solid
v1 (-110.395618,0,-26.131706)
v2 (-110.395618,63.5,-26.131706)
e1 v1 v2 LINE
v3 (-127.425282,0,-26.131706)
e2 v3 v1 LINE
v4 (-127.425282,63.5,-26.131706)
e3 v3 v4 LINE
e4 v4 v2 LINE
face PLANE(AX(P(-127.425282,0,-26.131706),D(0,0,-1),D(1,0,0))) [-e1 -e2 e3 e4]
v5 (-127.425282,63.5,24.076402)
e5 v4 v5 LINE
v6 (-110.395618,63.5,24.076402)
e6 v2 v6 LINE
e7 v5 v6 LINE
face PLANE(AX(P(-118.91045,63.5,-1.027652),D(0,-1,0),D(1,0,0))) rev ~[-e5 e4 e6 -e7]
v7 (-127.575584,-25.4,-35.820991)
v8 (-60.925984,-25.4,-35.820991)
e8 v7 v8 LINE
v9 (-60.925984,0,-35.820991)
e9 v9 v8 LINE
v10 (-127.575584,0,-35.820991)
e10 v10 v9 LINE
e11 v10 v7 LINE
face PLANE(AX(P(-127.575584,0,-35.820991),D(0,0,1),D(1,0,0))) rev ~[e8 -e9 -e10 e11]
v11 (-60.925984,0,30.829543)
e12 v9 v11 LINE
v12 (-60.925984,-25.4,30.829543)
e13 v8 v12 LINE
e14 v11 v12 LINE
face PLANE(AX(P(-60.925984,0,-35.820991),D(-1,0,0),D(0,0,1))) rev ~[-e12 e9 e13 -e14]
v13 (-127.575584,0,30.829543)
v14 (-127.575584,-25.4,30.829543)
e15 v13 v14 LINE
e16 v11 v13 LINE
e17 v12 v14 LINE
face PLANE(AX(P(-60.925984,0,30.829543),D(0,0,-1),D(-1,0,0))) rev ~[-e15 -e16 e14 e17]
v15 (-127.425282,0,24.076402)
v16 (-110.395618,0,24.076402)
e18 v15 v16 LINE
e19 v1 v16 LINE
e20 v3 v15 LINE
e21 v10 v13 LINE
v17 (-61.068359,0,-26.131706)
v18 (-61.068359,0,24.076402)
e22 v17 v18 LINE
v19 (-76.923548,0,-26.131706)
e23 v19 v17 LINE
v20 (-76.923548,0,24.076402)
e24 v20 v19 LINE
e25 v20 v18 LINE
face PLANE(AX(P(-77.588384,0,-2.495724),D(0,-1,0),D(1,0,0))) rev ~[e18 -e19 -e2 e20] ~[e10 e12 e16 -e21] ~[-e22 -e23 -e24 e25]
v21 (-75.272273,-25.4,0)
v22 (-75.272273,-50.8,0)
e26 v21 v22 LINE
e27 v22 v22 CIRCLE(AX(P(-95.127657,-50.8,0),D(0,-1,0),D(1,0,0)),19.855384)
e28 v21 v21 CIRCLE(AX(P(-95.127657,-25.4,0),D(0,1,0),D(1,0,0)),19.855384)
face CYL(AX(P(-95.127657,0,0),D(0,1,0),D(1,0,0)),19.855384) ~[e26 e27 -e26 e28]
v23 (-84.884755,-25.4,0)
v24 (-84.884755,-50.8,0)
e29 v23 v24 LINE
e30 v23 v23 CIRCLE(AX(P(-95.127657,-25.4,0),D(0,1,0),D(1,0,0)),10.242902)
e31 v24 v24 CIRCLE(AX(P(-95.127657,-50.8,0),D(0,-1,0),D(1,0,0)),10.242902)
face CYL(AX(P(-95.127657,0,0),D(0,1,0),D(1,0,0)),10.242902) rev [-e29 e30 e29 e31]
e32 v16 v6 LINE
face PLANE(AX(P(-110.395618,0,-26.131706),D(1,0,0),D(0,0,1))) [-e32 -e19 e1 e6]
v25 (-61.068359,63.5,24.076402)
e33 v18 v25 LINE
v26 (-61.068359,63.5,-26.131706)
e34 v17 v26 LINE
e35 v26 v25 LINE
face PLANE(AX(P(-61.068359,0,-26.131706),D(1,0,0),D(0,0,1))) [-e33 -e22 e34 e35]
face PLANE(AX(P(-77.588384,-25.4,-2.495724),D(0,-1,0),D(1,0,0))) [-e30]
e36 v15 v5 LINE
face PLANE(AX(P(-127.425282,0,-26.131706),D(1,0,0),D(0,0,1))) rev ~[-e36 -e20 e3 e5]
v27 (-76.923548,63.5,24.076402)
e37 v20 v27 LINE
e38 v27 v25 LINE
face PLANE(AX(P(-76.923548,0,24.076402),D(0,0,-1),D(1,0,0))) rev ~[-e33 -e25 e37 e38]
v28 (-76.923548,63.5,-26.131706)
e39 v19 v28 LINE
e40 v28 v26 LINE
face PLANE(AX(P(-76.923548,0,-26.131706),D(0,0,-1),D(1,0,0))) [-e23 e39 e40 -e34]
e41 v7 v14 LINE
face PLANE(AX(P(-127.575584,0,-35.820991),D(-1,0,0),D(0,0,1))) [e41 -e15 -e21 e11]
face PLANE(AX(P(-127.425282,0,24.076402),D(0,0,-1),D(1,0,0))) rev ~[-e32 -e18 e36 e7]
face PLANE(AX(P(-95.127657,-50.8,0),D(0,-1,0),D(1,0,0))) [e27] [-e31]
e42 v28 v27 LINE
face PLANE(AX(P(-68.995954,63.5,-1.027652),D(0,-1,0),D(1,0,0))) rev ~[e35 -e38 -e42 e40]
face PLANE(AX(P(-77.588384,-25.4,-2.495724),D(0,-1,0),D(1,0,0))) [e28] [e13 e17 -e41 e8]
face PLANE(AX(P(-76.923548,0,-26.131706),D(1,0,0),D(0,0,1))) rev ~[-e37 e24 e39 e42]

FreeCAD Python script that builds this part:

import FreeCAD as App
import Part
import Sketcher
Q = App.Units.Quantity

doc = App.newDocument("Part")
body = doc.addObject("PartDesign::Body", "Body")

sketch1 = doc.addObject("Sketcher::SketchObject", "Sketch")
body.addObject(sketch1)
sketch1.AttachmentSupport = (doc.XZ_Plane, [""])
sketch1.MapMode = "FlatFace"
sketch1.addGeometry([
    Part.LineSegment(App.Vector(-60.925984, -35.820991, 0), App.Vector(-60.925984, 30.829543, 0)),
    Part.LineSegment(App.Vector(-60.925984, 30.829543, 0), App.Vector(-127.575584, 30.829543, 0)),
    Part.LineSegment(App.Vector(-127.575584, 30.829543, 0), App.Vector(-127.575584, -35.820991, 0)),
    Part.LineSegment(App.Vector(-127.575584, -35.820991, 0), App.Vector(-60.925984, -35.820991, 0)),
], False)
sketch1.addConstraint([
    Sketcher.Constraint("Coincident", 0, 2, 1, 1),
    Sketcher.Constraint("Coincident", 1, 2, 2, 1),
    Sketcher.Constraint("Coincident", 2, 2, 3, 1),
    Sketcher.Constraint("Coincident", 3, 2, 0, 1),
    Sketcher.Constraint("Vertical", 0),
    Sketcher.Constraint("Horizontal", 1),
    Sketcher.Constraint("Vertical", 2),
    Sketcher.Constraint("Horizontal", 3),
    Sketcher.Constraint("DistanceX", 1, 2, 1, 1, Q("2.624 in")),
    Sketcher.Constraint("DistanceY", 0, 1, 0, 2, Q("66.650534 mm")),
    Sketcher.Constraint("DistanceY", 2, 2, -1, 1, Q("35.820991 mm")),
    Sketcher.Constraint("DistanceX", 0, 2, -1, 1, Q("60.925984 mm")),
])
pad1 = doc.addObject("PartDesign::Pad", "Pad")
body.addObject(pad1)
pad1.Profile = sketch1
pad1.Length = Q("1 in")

sketch2 = doc.addObject("Sketcher::SketchObject", "Sketch001")
body.addObject(sketch2)
sketch2.AttachmentSupport = (doc.XZ_Plane, [""])
sketch2.MapMode = "FlatFace"
sketch2.addGeometry([
    Part.LineSegment(App.Vector(-127.425282, 24.076402, 0), App.Vector(-127.425282, -26.131706, 0)),
    Part.LineSegment(App.Vector(-127.425282, -26.131706, 0), App.Vector(-110.395618, -26.131706, 0)),
    Part.LineSegment(App.Vector(-110.395618, -26.131706, 0), App.Vector(-110.395618, 24.076402, 0)),
    Part.LineSegment(App.Vector(-110.395618, 24.076402, 0), App.Vector(-127.425282, 24.076402, 0)),
    Part.LineSegment(App.Vector(-76.923548, 24.076402, 0), App.Vector(-76.923548, -26.131706, 0)),
    Part.LineSegment(App.Vector(-76.923548, -26.131706, 0), App.Vector(-61.068359, -26.131706, 0)),
    Part.LineSegment(App.Vector(-61.068359, -26.131706, 0), App.Vector(-61.068359, 24.076402, 0)),
    Part.LineSegment(App.Vector(-61.068359, 24.076402, 0), App.Vector(-76.923548, 24.076402, 0)),
], False)
sketch2.addConstraint([
    Sketcher.Constraint("Coincident", 0, 2, 1, 1),
    Sketcher.Constraint("Coincident", 1, 2, 2, 1),
    Sketcher.Constraint("Coincident", 2, 2, 3, 1),
    Sketcher.Constraint("Coincident", 3, 2, 0, 1),
    Sketcher.Constraint("Coincident", 4, 2, 5, 1),
    Sketcher.Constraint("Coincident", 5, 2, 6, 1),
    Sketcher.Constraint("Coincident", 6, 2, 7, 1),
    Sketcher.Constraint("Coincident", 7, 2, 4, 1),
    Sketcher.Constraint("Vertical", 0),
    Sketcher.Constraint("Horizontal", 1),
    Sketcher.Constraint("Vertical", 2),
    Sketcher.Constraint("Horizontal", 3),
    Sketcher.Constraint("Vertical", 4),
    Sketcher.Constraint("Horizontal", 5),
    Sketcher.Constraint("Vertical", 6),
    Sketcher.Constraint("Horizontal", 7),
    Sketcher.Constraint("Horizontal", 1, 2, 4, 2),
    Sketcher.Constraint("Horizontal", 3, 2, 6, 2),
    Sketcher.Constraint("DistanceX", 5, 1, 5, 2, Q("15.855189 mm")),
    Sketcher.Constraint("DistanceY", 0, 2, 0, 1, Q("50.208108 mm")),
    Sketcher.Constraint("DistanceX", 1, 1, 1, 2, Q("17.029665 mm")),
    Sketcher.Constraint("DistanceX", 4, 2, -1, 1, Q("76.923548 mm")),
    Sketcher.Constraint("DistanceX", 1, 2, 4, 2, Q("33.472069 mm")),
    Sketcher.Constraint("DistanceY", 0, 2, -1, 1, Q("26.131706 mm")),
])
pad2 = doc.addObject("PartDesign::Pad", "Pad001")
body.addObject(pad2)
pad2.Profile = sketch2
pad2.Length = Q("2.5 in")
pad2.Reversed = True

sketch3 = doc.addObject("Sketcher::SketchObject", "Sketch002")
body.addObject(sketch3)
sketch3.AttachmentSupport = (doc.XZ_Plane, [""])
sketch3.MapMode = "FlatFace"
sketch3.addGeometry([
    Part.Circle(App.Vector(-95.127657, 0, 0), App.Vector(0, 0, 1), 19.855384),
    Part.Circle(App.Vector(-95.127657, 0, 0), App.Vector(0, 0, 1), 10.242902),
], False)
sketch3.addConstraint([
    Sketcher.Constraint("Coincident", 1, 3, 0, 3),
    Sketcher.Constraint("PointOnObject", 0, 3, -1),
    Sketcher.Constraint("Diameter", 0, Q("39.710768 mm")),
    Sketcher.Constraint("Diameter", 1, Q("20.485804 mm")),
    Sketcher.Constraint("DistanceX", 0, 3, -1, 1, Q("95.127657 mm")),
])
pad3 = doc.addObject("PartDesign::Pad", "Pad002")
body.addObject(pad3)
pad3.Profile = sketch3
pad3.Length = Q("2 in")

doc.recompute()
